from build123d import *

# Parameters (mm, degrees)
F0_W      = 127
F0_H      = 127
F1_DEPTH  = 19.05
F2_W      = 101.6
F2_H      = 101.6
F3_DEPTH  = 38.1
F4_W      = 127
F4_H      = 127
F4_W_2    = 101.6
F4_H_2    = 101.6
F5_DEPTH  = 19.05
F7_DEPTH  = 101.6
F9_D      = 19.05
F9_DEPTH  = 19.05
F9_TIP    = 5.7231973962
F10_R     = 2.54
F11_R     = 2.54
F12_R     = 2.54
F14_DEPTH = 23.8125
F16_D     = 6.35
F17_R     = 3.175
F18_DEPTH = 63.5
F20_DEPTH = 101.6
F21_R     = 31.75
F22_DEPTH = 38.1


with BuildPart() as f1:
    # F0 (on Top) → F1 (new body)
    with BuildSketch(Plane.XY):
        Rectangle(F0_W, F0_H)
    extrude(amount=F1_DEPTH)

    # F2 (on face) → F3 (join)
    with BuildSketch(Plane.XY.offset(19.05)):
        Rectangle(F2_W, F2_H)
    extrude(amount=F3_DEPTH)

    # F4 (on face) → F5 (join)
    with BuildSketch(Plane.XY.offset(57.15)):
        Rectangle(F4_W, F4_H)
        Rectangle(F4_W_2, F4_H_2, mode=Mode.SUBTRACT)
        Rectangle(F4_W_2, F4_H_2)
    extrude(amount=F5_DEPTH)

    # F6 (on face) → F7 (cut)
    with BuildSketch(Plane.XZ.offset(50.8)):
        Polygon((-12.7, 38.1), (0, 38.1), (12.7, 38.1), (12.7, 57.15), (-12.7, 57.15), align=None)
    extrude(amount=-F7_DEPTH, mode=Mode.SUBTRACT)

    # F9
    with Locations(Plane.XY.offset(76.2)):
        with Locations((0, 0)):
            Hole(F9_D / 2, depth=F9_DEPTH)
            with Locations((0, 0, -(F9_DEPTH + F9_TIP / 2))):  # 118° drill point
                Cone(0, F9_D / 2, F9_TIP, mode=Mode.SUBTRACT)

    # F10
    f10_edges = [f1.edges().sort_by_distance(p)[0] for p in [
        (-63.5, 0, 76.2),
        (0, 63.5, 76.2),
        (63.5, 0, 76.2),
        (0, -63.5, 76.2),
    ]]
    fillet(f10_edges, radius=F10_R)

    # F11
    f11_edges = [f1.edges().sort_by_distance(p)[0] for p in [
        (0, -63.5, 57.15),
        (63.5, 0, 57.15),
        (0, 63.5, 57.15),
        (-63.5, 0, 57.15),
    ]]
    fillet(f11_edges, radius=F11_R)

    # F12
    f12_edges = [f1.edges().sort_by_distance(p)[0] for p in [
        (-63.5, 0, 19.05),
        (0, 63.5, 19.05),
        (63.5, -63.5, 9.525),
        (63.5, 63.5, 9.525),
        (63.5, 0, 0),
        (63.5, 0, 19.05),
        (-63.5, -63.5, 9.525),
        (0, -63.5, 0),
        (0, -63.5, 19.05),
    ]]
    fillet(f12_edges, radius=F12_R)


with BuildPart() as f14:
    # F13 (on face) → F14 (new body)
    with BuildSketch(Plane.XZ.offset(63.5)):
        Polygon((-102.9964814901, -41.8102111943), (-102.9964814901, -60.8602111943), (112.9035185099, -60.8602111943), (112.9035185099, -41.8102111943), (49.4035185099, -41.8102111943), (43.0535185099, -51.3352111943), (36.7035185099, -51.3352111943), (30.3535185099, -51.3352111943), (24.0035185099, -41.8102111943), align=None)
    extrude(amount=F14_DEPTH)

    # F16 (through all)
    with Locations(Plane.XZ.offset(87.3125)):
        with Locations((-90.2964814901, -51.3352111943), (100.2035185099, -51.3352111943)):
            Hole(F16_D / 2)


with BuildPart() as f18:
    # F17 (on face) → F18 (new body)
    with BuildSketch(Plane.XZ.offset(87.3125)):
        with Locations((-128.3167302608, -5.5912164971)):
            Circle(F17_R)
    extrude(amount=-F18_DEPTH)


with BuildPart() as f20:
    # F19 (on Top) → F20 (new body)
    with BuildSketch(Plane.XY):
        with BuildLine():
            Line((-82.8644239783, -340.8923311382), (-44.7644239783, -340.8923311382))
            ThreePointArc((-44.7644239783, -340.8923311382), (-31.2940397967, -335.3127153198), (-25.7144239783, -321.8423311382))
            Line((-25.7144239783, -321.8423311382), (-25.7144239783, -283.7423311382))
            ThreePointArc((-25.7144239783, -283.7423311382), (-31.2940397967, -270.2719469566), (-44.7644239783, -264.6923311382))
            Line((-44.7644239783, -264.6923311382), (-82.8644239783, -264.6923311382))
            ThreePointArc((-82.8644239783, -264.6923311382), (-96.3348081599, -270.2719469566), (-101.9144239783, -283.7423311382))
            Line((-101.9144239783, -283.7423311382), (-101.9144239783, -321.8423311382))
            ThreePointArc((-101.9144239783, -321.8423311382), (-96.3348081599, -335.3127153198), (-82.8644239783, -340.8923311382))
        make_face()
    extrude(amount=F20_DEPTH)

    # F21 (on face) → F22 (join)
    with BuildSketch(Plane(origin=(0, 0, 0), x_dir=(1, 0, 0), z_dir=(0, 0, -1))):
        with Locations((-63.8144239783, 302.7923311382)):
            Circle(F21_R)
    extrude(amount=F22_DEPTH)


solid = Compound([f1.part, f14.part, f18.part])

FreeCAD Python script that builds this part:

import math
import FreeCAD as App
import Part
import Sketcher
from FreeCAD import Vector
Q = App.Units.Quantity


def edges_at(feature, points):
    """Names of the edges that pass closest to the given points."""
    edges = feature.Shape.Edges
    near = lambda p: min(range(len(edges)), key=lambda i: edges[i].distToShape(Part.Vertex(*p))[0])
    return sorted({f"Edge{near(p) + 1}" for p in points})

doc = App.newDocument("Part")
body = doc.addObject("PartDesign::Body", "Body")

sketch1 = body.newObject("Sketcher::SketchObject", "Sketch")
sketch1.AttachmentSupport = (doc.getObject("XY_Plane"), [""])
sketch1.MapMode = "FlatFace"
sketch1.addGeometry(Part.LineSegment(Vector(-64, 64, 0), Vector(-64, -64, 0)), False)
sketch1.addGeometry(Part.LineSegment(Vector(-64, -64, 0), Vector(64, -64, 0)), False)
sketch1.addGeometry(Part.LineSegment(Vector(64, -64, 0), Vector(64, 64, 0)), False)
sketch1.addGeometry(Part.LineSegment(Vector(64, 64, 0), Vector(-64, 64, 0)), False)
sketch1.addConstraint(Sketcher.Constraint("Coincident", 0, 2, 1, 1))
sketch1.addConstraint(Sketcher.Constraint("Coincident", 1, 2, 2, 1))
sketch1.addConstraint(Sketcher.Constraint("Coincident", 2, 2, 3, 1))
sketch1.addConstraint(Sketcher.Constraint("Coincident", 3, 2, 0, 1))
sketch1.addConstraint(Sketcher.Constraint("Vertical", 0))
sketch1.addConstraint(Sketcher.Constraint("Horizontal", 1))
sketch1.addConstraint(Sketcher.Constraint("Vertical", 2))
sketch1.addConstraint(Sketcher.Constraint("Horizontal", 3))
sketch1.addConstraint(Sketcher.Constraint("Symmetric", 0, 2, 2, 2, -1, 1))
sketch1.addConstraint(Sketcher.Constraint("Equal", 3, 0))
sketch1.addConstraint(Sketcher.Constraint("DistanceX", 1, 1, 1, 2, Q("5 in")))
pad1 = body.newObject("PartDesign::Pad", "Pad")
pad1.Profile = sketch1
pad1.Length = Q("0.75 in")

sketch2 = body.newObject("Sketcher::SketchObject", "Sketch001")
sketch2.AttachmentSupport = (doc.getObject("XY_Plane"), [""])
sketch2.MapMode = "FlatFace"
sketch2.AttachmentOffset = App.Placement(Vector(0, 0, 0.75 * 25.4), App.Rotation())
sketch2.addGeometry(Part.LineSegment(Vector(-51, 51, 0), Vector(-51, -51, 0)), False)
sketch2.addGeometry(Part.LineSegment(Vector(-51, -51, 0), Vector(51, -51, 0)), False)
sketch2.addGeometry(Part.LineSegment(Vector(51, -51, 0), Vector(51, 51, 0)), False)
sketch2.addGeometry(Part.LineSegment(Vector(51, 51, 0), Vector(-51, 51, 0)), False)
sketch2.addConstraint(Sketcher.Constraint("Coincident", 0, 2, 1, 1))
sketch2.addConstraint(Sketcher.Constraint("Coincident", 1, 2, 2, 1))
sketch2.addConstraint(Sketcher.Constraint("Coincident", 2, 2, 3, 1))
sketch2.addConstraint(Sketcher.Constraint("Coincident", 3, 2, 0, 1))
sketch2.addConstraint(Sketcher.Constraint("Vertical", 0))
sketch2.addConstraint(Sketcher.Constraint("Horizontal", 1))
sketch2.addConstraint(Sketcher.Constraint("Vertical", 2))
sketch2.addConstraint(Sketcher.Constraint("Horizontal", 3))
sketch2.addConstraint(Sketcher.Constraint("Symmetric", 0, 2, 2, 2, -1, 1))
sketch2.addConstraint(Sketcher.Constraint("Equal", 3, 0))
sketch2.addConstraint(Sketcher.Constraint("DistanceX", 1, 1, 1, 2, Q("4 in")))
pad2 = body.newObject("PartDesign::Pad", "Pad001")
pad2.Profile = sketch2
pad2.Length = Q("1.5 in")

sketch3 = body.newObject("Sketcher::SketchObject", "Sketch002")
sketch3.AttachmentSupport = (doc.getObject("XY_Plane"), [""])
sketch3.MapMode = "FlatFace"
sketch3.AttachmentOffset = App.Placement(Vector(0, 0, 2.25 * 25.4), App.Rotation())
sketch3.addGeometry(Part.LineSegment(Vector(-64, 64, 0), Vector(-64, -64, 0)), False)
sketch3.addGeometry(Part.LineSegment(Vector(-64, -64, 0), Vector(64, -64, 0)), False)
sketch3.addGeometry(Part.LineSegment(Vector(64, -64, 0), Vector(64, 64, 0)), False)
sketch3.addGeometry(Part.LineSegment(Vector(64, 64, 0), Vector(-64, 64, 0)), False)
sketch3.addConstraint(Sketcher.Constraint("Coincident", 0, 2, 1, 1))
sketch3.addConstraint(Sketcher.Constraint("Coincident", 1, 2, 2, 1))
sketch3.addConstraint(Sketcher.Constraint("Coincident", 2, 2, 3, 1))
sketch3.addConstraint(Sketcher.Constraint("Coincident", 3, 2, 0, 1))
sketch3.addConstraint(Sketcher.Constraint("Vertical", 0))
sketch3.addConstraint(Sketcher.Constraint("Horizontal", 1))
sketch3.addConstraint(Sketcher.Constraint("Vertical", 2))
sketch3.addConstraint(Sketcher.Constraint("Horizontal", 3))
sketch3.addConstraint(Sketcher.Constraint("Symmetric", 0, 2, 2, 2, -1, 1))
sketch3.addConstraint(Sketcher.Constraint("Equal", 3, 0))
sketch3.addConstraint(Sketcher.Constraint("DistanceX", 1, 1, 1, 2, Q("5 in")))
pad3 = body.newObject("PartDesign::Pad", "Pad002")
pad3.Profile = sketch3
pad3.Length = Q("0.75 in")

sketch4 = body.newObject("Sketcher::SketchObject", "Sketch003")
sketch4.AttachmentSupport = (doc.getObject("XZ_Plane"), [""])
sketch4.MapMode = "FlatFace"
sketch4.AttachmentOffset = App.Placement(Vector(0, 0, 2 * 25.4), App.Rotation())
sketch4.addGeometry(Part.LineSegment(Vector(-13, 38, 0), Vector(13, 38, 0)), False)
sketch4.addGeometry(Part.LineSegment(Vector(13, 38, 0), Vector(13, 57, 0)), False)
sketch4.addGeometry(Part.LineSegment(Vector(13, 57, 0), Vector(-13, 57, 0)), False)
sketch4.addGeometry(Part.LineSegment(Vector(-13, 57, 0), Vector(-13, 38, 0)), False)
sketch4.addConstraint(Sketcher.Constraint("Coincident", 0, 2, 1, 1))
sketch4.addConstraint(Sketcher.Constraint("Coincident", 1, 2, 2, 1))
sketch4.addConstraint(Sketcher.Constraint("Coincident", 2, 2, 3, 1))
sketch4.addConstraint(Sketcher.Constraint("Coincident", 3, 2, 0, 1))
sketch4.addConstraint(Sketcher.Constraint("Horizontal", 0))
sketch4.addConstraint(Sketcher.Constraint("Vertical", 1))
sketch4.addConstraint(Sketcher.Constraint("Horizontal", 2))
sketch4.addConstraint(Sketcher.Constraint("Vertical", 3))
sketch4.addConstraint(Sketcher.Constraint("DistanceX", 0, 1, 0, 2, Q("1 in")))
sketch4.addConstraint(Sketcher.Constraint("DistanceY", 1, 1, 1, 2, Q("0.75 in")))
sketch4.addConstraint(Sketcher.Constraint("DistanceX", -1, 1, 0, 2, Q("0.5 in")))
sketch4.addConstraint(Sketcher.Constraint("DistanceY", -1, 1, 0, 2, Q("1.5 in")))
pocket1 = body.newObject("PartDesign::Pocket", "Pocket")
pocket1.Profile = sketch4
pocket1.Length = Q("4 in")

sketch5 = body.newObject("Sketcher::SketchObject", "Sketch004")
sketch5.AttachmentSupport = (doc.getObject("XY_Plane"), [""])
sketch5.MapMode = "FlatFace"
sketch5.AttachmentOffset = App.Placement(Vector(0, 0, 3 * 25.4), App.Rotation())
sketch5.addGeometry(Part.Circle(Vector(0, 0, 0), Vector(0, 0, 1), 10), False)
sketch5.addConstraint(Sketcher.Constraint("Coincident", 0, 3, -1, 1))
sketch5.addConstraint(Sketcher.Constraint("Diameter", 0, Q("0.75 in")))
doc.recompute()
hole = body.newObject("PartDesign::Hole", "Hole")
hole.Profile = sketch5
hole.ThreadType = "None"
hole.Diameter = Q("0.75 in")
hole.DepthType = "Dimension"
hole.Depth = Q("0.75 in")
hole.DrillPoint = "Angled"
hole.DrillPointAngle = 118
doc.recompute()

fillet = body.newObject("PartDesign::Fillet", "Fillet")
fillet.Base = (hole, edges_at(hole, [
    (-63.5, 0, 76.2),
    (0, 63.5, 76.2),
    (63.5, 0, 76.2),
    (0, -63.5, 76.2),
]))
fillet.Radius = Q("0.1 in")
doc.recompute()

fillet2 = body.newObject("PartDesign::Fillet", "Fillet001")
fillet2.Base = (fillet, edges_at(fillet, [
    (0, -63.5, 57.15),
    (63.5, 0, 57.15),
    (0, 63.5, 57.15),
    (-63.5, 0, 57.15),
]))
fillet2.Radius = Q("0.1 in")
doc.recompute()

fillet3 = body.newObject("PartDesign::Fillet", "Fillet002")
fillet3.Base = (fillet2, edges_at(fillet2, [
    (-63.5, 0, 19.05),
    (0, 63.5, 19.05),
    (63.5, -63.5, 9.525),
    (63.5, 63.5, 9.525),
    (63.5, 0, 0),
    (63.5, 0, 19.05),
    (-63.5, -63.5, 9.525),
    (0, -63.5, 0),
    (0, -63.5, 19.05),
]))
fillet3.Radius = Q("0.1 in")
body2 = doc.addObject("PartDesign::Body", "Body001")

sketch6 = body2.newObject("Sketcher::SketchObject", "Sketch005")
sketch6.AttachmentSupport = (doc.getObject("XZ_Plane001"), [""])
sketch6.MapMode = "FlatFace"
sketch6.AttachmentOffset = App.Placement(Vector(0, 0, 2.5 * 25.4), App.Rotation())
sketch6.addGeometry(Part.LineSegment(Vector(-103, -42, 0), Vector(-103, -61, 0)), False)
sketch6.addGeometry(Part.LineSegment(Vector(-103, -61, 0), Vector(113, -61, 0)), False)
sketch6.addGeometry(Part.LineSegment(Vector(113, -61, 0), Vector(113, -42, 0)), False)
sketch6.addGeometry(Part.LineSegment(Vector(113, -42, 0), Vector(49, -42, 0)), False)
sketch6.addGeometry(Part.LineSegment(Vector(49, -42, 0), Vector(43, -51, 0)), False)
sketch6.addGeometry(Part.LineSegment(Vector(43, -51, 0), Vector(30, -51, 0)), False)
sketch6.addGeometry(Part.LineSegment(Vector(30, -51, 0), Vector(24, -42, 0)), False)
sketch6.addGeometry(Part.LineSegment(Vector(24, -42, 0), Vector(-103, -42, 0)), False)
sketch6.addConstraint(Sketcher.Constraint("Coincident", 0, 2, 1, 1))
sketch6.addConstraint(Sketcher.Constraint("Coincident", 1, 2, 2, 1))
sketch6.addConstraint(Sketcher.Constraint("Coincident", 2, 2, 3, 1))
sketch6.addConstraint(Sketcher.Constraint("Coincident", 3, 2, 4, 1))
sketch6.addConstraint(Sketcher.Constraint("Coincident", 4, 2, 5, 1))
sketch6.addConstraint(Sketcher.Constraint("Coincident", 5, 2, 6, 1))
sketch6.addConstraint(Sketcher.Constraint("Coincident", 6, 2, 7, 1))
sketch6.addConstraint(Sketcher.Constraint("Coincident", 7, 2, 0, 1))
sketch6.addConstraint(Sketcher.Constraint("Vertical", 0))
sketch6.addConstraint(Sketcher.Constraint("Horizontal", 1))
sketch6.addConstraint(Sketcher.Constraint("Vertical", 2))
sketch6.addConstraint(Sketcher.Constraint("Horizontal", 3))
sketch6.addConstraint(Sketcher.Constraint("Horizontal", 5))
sketch6.addConstraint(Sketcher.Constraint("Horizontal", 7))
sketch6.addConstraint(Sketcher.Constraint("Horizontal", 3, 2, 6, 2))
sketch6.addConstraint(Sketcher.Constraint("Equal", 4, 6))
sketch6.addConstraint(Sketcher.Constraint("DistanceX", 7, 2, 7, 1, Q("5 in")))
sketch6.addConstraint(Sketcher.Constraint("DistanceX", 1, 1, 1, 2, Q("8.5 in")))
sketch6.addConstraint(Sketcher.Constraint("DistanceX", 3, 2, 3, 1, Q("2.5 in")))
sketch6.addConstraint(Sketcher.Constraint("DistanceX", 5, 2, 5, 1, Q("0.5 in")))
sketch6.addConstraint(Sketcher.Constraint("DistanceY", 0, 2, 0, 1, Q("0.75 in")))
sketch6.addConstraint(Sketcher.Constraint("DistanceY", 4, 2, 3, 2, Q("0.375 in")))
sketch6.addConstraint(Sketcher.Constraint("DistanceX", 0, 2, -1, 1, Q("102.996481 mm")))
sketch6.addConstraint(Sketcher.Constraint("DistanceY", 0, 2, -1, 1, Q("60.860211 mm")))
pad4 = body2.newObject("PartDesign::Pad", "Pad003")
pad4.Profile = sketch6
pad4.Length = Q("0.9375 in")

sketch7 = body2.newObject("Sketcher::SketchObject", "Sketch006")
sketch7.AttachmentSupport = (doc.getObject("XZ_Plane001"), [""])
sketch7.MapMode = "FlatFace"
sketch7.AttachmentOffset = App.Placement(Vector(0, 0, 3.4375 * 25.4), App.Rotation())
sketch7.addGeometry(Part.Circle(Vector(-90.3, -51.3, 0), Vector(0, 0, 1), 3.2), False)
sketch7.addGeometry(Part.Circle(Vector(100.2, -51.3, 0), Vector(0, 0, 1), 3.2), False)
sketch7.addConstraint(Sketcher.Constraint("Equal", 0, 1))
sketch7.addConstraint(Sketcher.Constraint("Horizontal", 0, 3, 1, 3))
sketch7.addConstraint(Sketcher.Constraint("Diameter", 0, Q("0.25 in")))
sketch7.addConstraint(Sketcher.Constraint("DistanceX", 0, 3, 1, 3, Q("7.5 in")))
sketch7.addConstraint(Sketcher.Constraint("DistanceX", 0, 3, -1, 1, Q("90.296481 mm")))
sketch7.addConstraint(Sketcher.Constraint("DistanceY", 0, 3, -1, 1, Q("51.335211 mm")))
doc.recompute()
hole2 = body2.newObject("PartDesign::Hole", "Hole001")
hole2.Profile = sketch7
hole2.ThreadType = "None"
hole2.Diameter = Q("0.25 in")
hole2.DepthType = "ThroughAll"
body3 = doc.addObject("PartDesign::Body", "Body002")

sketch8 = body3.newObject("Sketcher::SketchObject", "Sketch007")
sketch8.AttachmentSupport = (doc.getObject("XZ_Plane002"), [""])
sketch8.MapMode = "FlatFace"
sketch8.AttachmentOffset = App.Placement(Vector(0, 0, 3.4375 * 25.4), App.Rotation())
sketch8.addGeometry(Part.Circle(Vector(-128.3, -5.6, 0), Vector(0, 0, 1), 3.2), False)
sketch8.addConstraint(Sketcher.Constraint("Diameter", 0, Q("0.25 in")))
sketch8.addConstraint(Sketcher.Constraint("DistanceX", 0, 3, -1, 1, Q("128.31673 mm")))
sketch8.addConstraint(Sketcher.Constraint("DistanceY", 0, 3, -1, 1, Q("5.591216 mm")))
pad5 = body3.newObject("PartDesign::Pad", "Pad004")
pad5.Profile = sketch8
pad5.Length = Q("2.5 in")
pad5.Reversed = True
body4 = doc.addObject("PartDesign::Body", "Body003")

sketch9 = body4.newObject("Sketcher::SketchObject", "Sketch008")
sketch9.AttachmentSupport = (doc.getObject("XY_Plane003"), [""])
sketch9.MapMode = "FlatFace"
sketch9.addGeometry(Part.LineSegment(Vector(-83, -341, 0), Vector(-45, -341, 0)), False)
sketch9.addGeometry(Part.ArcOfCircle(Part.Circle(Vector(-45, -322, 0), Vector(0, 0, 1), 19), math.radians(-90), math.radians(0)), False)
sketch9.addGeometry(Part.LineSegment(Vector(-26, -322, 0), Vector(-26, -284, 0)), False)
sketch9.addGeometry(Part.ArcOfCircle(Part.Circle(Vector(-45, -284, 0), Vector(0, 0, 1), 19), math.radians(0), math.radians(90)), False)
sketch9.addGeometry(Part.LineSegment(Vector(-45, -265, 0), Vector(-83, -265, 0)), False)
sketch9.addGeometry(Part.ArcOfCircle(Part.Circle(Vector(-83, -284, 0), Vector(0, 0, 1), 19), math.radians(90), math.radians(180)), False)
sketch9.addGeometry(Part.LineSegment(Vector(-102, -284, 0), Vector(-102, -322, 0)), False)
sketch9.addGeometry(Part.ArcOfCircle(Part.Circle(Vector(-83, -322, 0), Vector(0, 0, 1), 19), math.radians(180), math.radians(270)), False)
sketch9.addConstraint(Sketcher.Constraint("Tangent", 0, 2, 1, 1))
sketch9.addConstraint(Sketcher.Constraint("Tangent", 1, 2, 2, 1))
sketch9.addConstraint(Sketcher.Constraint("Tangent", 2, 2, 3, 1))
sketch9.addConstraint(Sketcher.Constraint("Tangent", 3, 2, 4, 1))
sketch9.addConstraint(Sketcher.Constraint("Tangent", 4, 2, 5, 1))
sketch9.addConstraint(Sketcher.Constraint("Tangent", 5, 2, 6, 1))
sketch9.addConstraint(Sketcher.Constraint("Tangent", 6, 2, 7, 1))
sketch9.addConstraint(Sketcher.Constraint("Tangent", 7, 2, 0, 1))
sketch9.addConstraint(Sketcher.Constraint("Horizontal", 0))
sketch9.addConstraint(Sketcher.Constraint("Vertical", 2))
sketch9.addConstraint(Sketcher.Constraint("Horizontal", 4))
sketch9.addConstraint(Sketcher.Constraint("Vertical", 6))
sketch9.addConstraint(Sketcher.Constraint("Equal", 1, 3))
sketch9.addConstraint(Sketcher.Constraint("Equal", 3, 5))
sketch9.addConstraint(Sketcher.Constraint("Equal", 5, 7))
sketch9.addConstraint(Sketcher.Constraint("Equal", 4, 2))
sketch9.addConstraint(Sketcher.Constraint("Radius", 1, Q("0.75 in")))
sketch9.addConstraint(Sketcher.Constraint("DistanceX", 0, 1, 0, 2, Q("1.5 in")))
sketch9.addConstraint(Sketcher.Constraint("DistanceY", 1, 3, -1, 1, Q("321.842331 mm")))
sketch9.addConstraint(Sketcher.Constraint("DistanceX", 1, 3, -1, 1, Q("44.764424 mm")))
pad6 = body4.newObject("PartDesign::Pad", "Pad005")
pad6.Profile = sketch9
pad6.Length = Q("4 in")

sketch10 = body4.newObject("Sketcher::SketchObject", "Sketch009")
sketch10.AttachmentSupport = (doc.getObject("XY_Plane003"), [""])
sketch10.MapMode = "FlatFace"
sketch10.addGeometry(Part.Circle(Vector(-64, -303, 0), Vector(0, 0, 1), 32), False)
sketch10.addConstraint(Sketcher.Constraint("Diameter", 0, Q("2.5 in")))
sketch10.addConstraint(Sketcher.Constraint("DistanceY", 0, 3, -1, 1, Q("302.792331 mm")))
sketch10.addConstraint(Sketcher.Constraint("DistanceX", 0, 3, -1, 1, Q("63.814424 mm")))
pad7 = body4.newObject("PartDesign::Pad", "Pad006")
pad7.Profile = sketch10
pad7.Length = Q("1.5 in")
pad7.Reversed = True
body4.Visibility = False

doc.recompute()
